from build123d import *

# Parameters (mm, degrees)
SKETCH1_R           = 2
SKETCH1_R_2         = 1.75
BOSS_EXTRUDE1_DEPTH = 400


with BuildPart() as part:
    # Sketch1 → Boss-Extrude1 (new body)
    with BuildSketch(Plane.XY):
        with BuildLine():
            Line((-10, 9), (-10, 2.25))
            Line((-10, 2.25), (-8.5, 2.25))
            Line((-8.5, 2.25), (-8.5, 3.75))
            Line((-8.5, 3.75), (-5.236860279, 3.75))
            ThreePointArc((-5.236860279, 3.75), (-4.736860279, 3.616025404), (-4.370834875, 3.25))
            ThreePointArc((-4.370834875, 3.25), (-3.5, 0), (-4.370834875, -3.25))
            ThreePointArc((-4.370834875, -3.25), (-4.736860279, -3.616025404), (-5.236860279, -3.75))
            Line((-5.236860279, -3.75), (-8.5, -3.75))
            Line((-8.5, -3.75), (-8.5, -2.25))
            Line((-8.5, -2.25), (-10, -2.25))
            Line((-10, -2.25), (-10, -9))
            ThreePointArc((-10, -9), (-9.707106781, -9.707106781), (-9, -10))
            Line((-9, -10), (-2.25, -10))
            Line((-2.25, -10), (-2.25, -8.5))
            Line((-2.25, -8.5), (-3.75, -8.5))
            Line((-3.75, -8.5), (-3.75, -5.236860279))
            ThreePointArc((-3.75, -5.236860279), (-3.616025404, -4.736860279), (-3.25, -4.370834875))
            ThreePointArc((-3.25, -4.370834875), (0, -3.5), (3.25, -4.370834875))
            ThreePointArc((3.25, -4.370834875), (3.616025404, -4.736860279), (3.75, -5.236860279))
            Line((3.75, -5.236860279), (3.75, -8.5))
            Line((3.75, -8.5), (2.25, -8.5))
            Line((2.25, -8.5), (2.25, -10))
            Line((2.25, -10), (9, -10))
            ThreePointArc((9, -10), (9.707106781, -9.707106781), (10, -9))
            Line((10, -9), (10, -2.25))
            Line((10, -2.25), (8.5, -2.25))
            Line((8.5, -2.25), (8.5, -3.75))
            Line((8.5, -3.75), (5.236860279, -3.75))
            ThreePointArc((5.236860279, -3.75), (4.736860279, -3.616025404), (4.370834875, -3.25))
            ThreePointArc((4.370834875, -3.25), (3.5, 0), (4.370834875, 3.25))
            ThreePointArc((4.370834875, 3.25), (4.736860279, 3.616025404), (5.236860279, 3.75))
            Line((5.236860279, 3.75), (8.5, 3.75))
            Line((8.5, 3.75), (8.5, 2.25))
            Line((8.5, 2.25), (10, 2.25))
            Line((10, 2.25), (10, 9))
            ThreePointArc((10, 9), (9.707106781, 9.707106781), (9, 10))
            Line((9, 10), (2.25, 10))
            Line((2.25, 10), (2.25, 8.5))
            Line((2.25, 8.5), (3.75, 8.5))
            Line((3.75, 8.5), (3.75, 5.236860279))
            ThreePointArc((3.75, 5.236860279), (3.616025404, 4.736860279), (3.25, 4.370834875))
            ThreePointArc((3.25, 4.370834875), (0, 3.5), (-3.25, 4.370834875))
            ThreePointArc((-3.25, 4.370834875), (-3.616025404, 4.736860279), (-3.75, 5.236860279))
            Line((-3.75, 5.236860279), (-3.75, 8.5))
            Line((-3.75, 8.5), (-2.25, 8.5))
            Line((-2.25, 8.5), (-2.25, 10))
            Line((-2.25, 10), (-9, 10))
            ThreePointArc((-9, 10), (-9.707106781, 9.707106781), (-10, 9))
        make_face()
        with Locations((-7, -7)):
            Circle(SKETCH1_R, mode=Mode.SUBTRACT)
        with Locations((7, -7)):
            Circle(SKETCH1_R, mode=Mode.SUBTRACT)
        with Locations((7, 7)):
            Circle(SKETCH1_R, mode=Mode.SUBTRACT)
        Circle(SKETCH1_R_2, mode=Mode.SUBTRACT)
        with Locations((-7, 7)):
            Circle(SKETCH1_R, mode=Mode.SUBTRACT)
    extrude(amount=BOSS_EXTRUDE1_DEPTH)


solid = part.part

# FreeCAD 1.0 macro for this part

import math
import FreeCAD as App
import Part
import Sketcher

V = App.Vector

doc = App.newDocument("Part")
body = doc.addObject("PartDesign::Body", "Body")

sketch1 = body.newObject("Sketcher::SketchObject", "Sketch")
sketch1.AttachmentSupport = (doc.getObject("XY_Plane"), [""])
sketch1.MapMode = "FlatFace"
sketch1.addGeometry([
    Part.LineSegment(V(-10, 9, 0), V(-10, 2.25, 0)),
    Part.LineSegment(V(-10, 2.25, 0), V(-8.5, 2.25, 0)),
    Part.LineSegment(V(-8.5, 2.25, 0), V(-8.5, 3.75, 0)),
    Part.LineSegment(V(-8.5, 3.75, 0), V(-5.23686, 3.75, 0)),
    Part.ArcOfCircle(Part.Circle(V(-5.23686, 2.75, 0), V(0, 0, 1), 1), math.radians(30), math.radians(90)),
    Part.ArcOfCircle(Part.Circle(V(-10, 0, 0), V(0, 0, 1), 6.5), math.radians(-30), math.radians(30)),
    Part.ArcOfCircle(Part.Circle(V(-5.23686, -2.75, 0), V(0, 0, 1), 1), math.radians(-90), math.radians(-30)),
    Part.LineSegment(V(-5.23686, -3.75, 0), V(-8.5, -3.75, 0)),
    Part.LineSegment(V(-8.5, -3.75, 0), V(-8.5, -2.25, 0)),
    Part.LineSegment(V(-8.5, -2.25, 0), V(-10, -2.25, 0)),
    Part.LineSegment(V(-10, -2.25, 0), V(-10, -9, 0)),
    Part.ArcOfCircle(Part.Circle(V(-9, -9, 0), V(0, 0, 1), 1), math.radians(-180), math.radians(-90)),
    Part.LineSegment(V(-9, -10, 0), V(-2.25, -10, 0)),
    Part.LineSegment(V(-2.25, -10, 0), V(-2.25, -8.5, 0)),
    Part.LineSegment(V(-2.25, -8.5, 0), V(-3.75, -8.5, 0)),
    Part.LineSegment(V(-3.75, -8.5, 0), V(-3.75, -5.23686, 0)),
    Part.ArcOfCircle(Part.Circle(V(-2.75, -5.23686, 0), V(0, 0, 1), 1), math.radians(120), math.radians(180)),
    Part.ArcOfCircle(Part.Circle(V(0, -10, 0), V(0, 0, 1), 6.5), math.radians(60), math.radians(120)),
    Part.ArcOfCircle(Part.Circle(V(2.75, -5.23686, 0), V(0, 0, 1), 1), math.radians(0), math.radians(60)),
    Part.LineSegment(V(3.75, -5.23686, 0), V(3.75, -8.5, 0)),
    Part.LineSegment(V(3.75, -8.5, 0), V(2.25, -8.5, 0)),
    Part.LineSegment(V(2.25, -8.5, 0), V(2.25, -10, 0)),
    Part.LineSegment(V(2.25, -10, 0), V(9, -10, 0)),
    Part.ArcOfCircle(Part.Circle(V(9, -9, 0), V(0, 0, 1), 1), math.radians(-90), math.radians(0)),
    Part.LineSegment(V(10, -9, 0), V(10, -2.25, 0)),
    Part.LineSegment(V(10, -2.25, 0), V(8.5, -2.25, 0)),
    Part.LineSegment(V(8.5, -2.25, 0), V(8.5, -3.75, 0)),
    Part.LineSegment(V(8.5, -3.75, 0), V(5.23686, -3.75, 0)),
    Part.ArcOfCircle(Part.Circle(V(5.23686, -2.75, 0), V(0, 0, 1), 1), math.radians(-150), math.radians(-90)),
    Part.ArcOfCircle(Part.Circle(V(10, 0, 0), V(0, 0, 1), 6.5), math.radians(150), math.radians(210)),
    Part.ArcOfCircle(Part.Circle(V(5.23686, 2.75, 0), V(0, 0, 1), 1), math.radians(90), math.radians(150)),
    Part.LineSegment(V(5.23686, 3.75, 0), V(8.5, 3.75, 0)),
    Part.LineSegment(V(8.5, 3.75, 0), V(8.5, 2.25, 0)),
    Part.LineSegment(V(8.5, 2.25, 0), V(10, 2.25, 0)),
    Part.LineSegment(V(10, 2.25, 0), V(10, 9, 0)),
    Part.ArcOfCircle(Part.Circle(V(9, 9, 0), V(0, 0, 1), 1), math.radians(0), math.radians(90)),
    Part.LineSegment(V(9, 10, 0), V(2.25, 10, 0)),
    Part.LineSegment(V(2.25, 10, 0), V(2.25, 8.5, 0)),
    Part.LineSegment(V(2.25, 8.5, 0), V(3.75, 8.5, 0)),
    Part.LineSegment(V(3.75, 8.5, 0), V(3.75, 5.23686, 0)),
    Part.ArcOfCircle(Part.Circle(V(2.75, 5.23686, 0), V(0, 0, 1), 1), math.radians(-60), math.radians(0)),
    Part.ArcOfCircle(Part.Circle(V(0, 10, 0), V(0, 0, 1), 6.5), math.radians(-120), math.radians(-60)),
    Part.ArcOfCircle(Part.Circle(V(-2.75, 5.23686, 0), V(0, 0, 1), 1), math.radians(180), math.radians(240)),
    Part.LineSegment(V(-3.75, 5.23686, 0), V(-3.75, 8.5, 0)),
    Part.LineSegment(V(-3.75, 8.5, 0), V(-2.25, 8.5, 0)),
    Part.LineSegment(V(-2.25, 8.5, 0), V(-2.25, 10, 0)),
    Part.LineSegment(V(-2.25, 10, 0), V(-9, 10, 0)),
    Part.ArcOfCircle(Part.Circle(V(-9, 9, 0), V(0, 0, 1), 1), math.radians(90), math.radians(180)),
    Part.Circle(V(-7, -7, 0), V(0, 0, 1), 2),
    Part.Circle(V(7, -7, 0), V(0, 0, 1), 2),
    Part.Circle(V(-7, 7, 0), V(0, 0, 1), 2),
    Part.Circle(V(0, 0, 0), V(0, 0, 1), 1.75),
    Part.Circle(V(7, 7, 0), V(0, 0, 1), 2),
], False)
sketch1.addConstraint([
    Sketcher.Constraint("Coincident", 0, 2, 1, 1),
    Sketcher.Constraint("Coincident", 1, 2, 2, 1),
    Sketcher.Constraint("Coincident", 2, 2, 3, 1),
    Sketcher.Constraint("Tangent", 3, 2, 4, 2),
    Sketcher.Constraint("Tangent", 4, 1, 5, 2),
    Sketcher.Constraint("Tangent", 5, 1, 6, 2),
    Sketcher.Constraint("Tangent", 6, 1, 7, 1),
    Sketcher.Constraint("Coincident", 7, 2, 8, 1),
    Sketcher.Constraint("Coincident", 8, 2, 9, 1),
    Sketcher.Constraint("Coincident", 9, 2, 10, 1),
    Sketcher.Constraint("Tangent", 10, 2, 11, 1),
    Sketcher.Constraint("Tangent", 11, 2, 12, 1),
    Sketcher.Constraint("Coincident", 12, 2, 13, 1),
    Sketcher.Constraint("Coincident", 13, 2, 14, 1),
    Sketcher.Constraint("Coincident", 14, 2, 15, 1),
    Sketcher.Constraint("Tangent", 15, 2, 16, 2),
    Sketcher.Constraint("Tangent", 16, 1, 17, 2),
    Sketcher.Constraint("Tangent", 17, 1, 18, 2),
    Sketcher.Constraint("Tangent", 18, 1, 19, 1),
    Sketcher.Constraint("Coincident", 19, 2, 20, 1),
    Sketcher.Constraint("Coincident", 20, 2, 21, 1),
    Sketcher.Constraint("Coincident", 21, 2, 22, 1),
    Sketcher.Constraint("Tangent", 22, 2, 23, 1),
    Sketcher.Constraint("Tangent", 23, 2, 24, 1),
    Sketcher.Constraint("Coincident", 24, 2, 25, 1),
    Sketcher.Constraint("Coincident", 25, 2, 26, 1),
    Sketcher.Constraint("Coincident", 26, 2, 27, 1),
    Sketcher.Constraint("Tangent", 27, 2, 28, 2),
    Sketcher.Constraint("Tangent", 28, 1, 29, 2),
    Sketcher.Constraint("Tangent", 29, 1, 30, 2),
    Sketcher.Constraint("Tangent", 30, 1, 31, 1),
    Sketcher.Constraint("Coincident", 31, 2, 32, 1),
    Sketcher.Constraint("Coincident", 32, 2, 33, 1),
    Sketcher.Constraint("Coincident", 33, 2, 34, 1),
    Sketcher.Constraint("Tangent", 34, 2, 35, 1),
    Sketcher.Constraint("Tangent", 35, 2, 36, 1),
    Sketcher.Constraint("Coincident", 36, 2, 37, 1),
    Sketcher.Constraint("Coincident", 37, 2, 38, 1),
    Sketcher.Constraint("Coincident", 38, 2, 39, 1),
    Sketcher.Constraint("Tangent", 39, 2, 40, 2),
    Sketcher.Constraint("Tangent", 40, 1, 41, 2),
    Sketcher.Constraint("Tangent", 41, 1, 42, 2),
    Sketcher.Constraint("Tangent", 42, 1, 43, 1),
    Sketcher.Constraint("Coincident", 43, 2, 44, 1),
    Sketcher.Constraint("Coincident", 44, 2, 45, 1),
    Sketcher.Constraint("Coincident", 45, 2, 46, 1),
    Sketcher.Constraint("Tangent", 46, 2, 47, 1),
    Sketcher.Constraint("Tangent", 47, 2, 0, 1),
    Sketcher.Constraint("Vertical", 0),
    Sketcher.Constraint("Horizontal", 1),
    Sketcher.Constraint("Vertical", 2),
    Sketcher.Constraint("Horizontal", 3),
    Sketcher.Constraint("Horizontal", 7),
    Sketcher.Constraint("Vertical", 8),
    Sketcher.Constraint("Horizontal", 9),
    Sketcher.Constraint("Vertical", 10),
    Sketcher.Constraint("Horizontal", 12),
    Sketcher.Constraint("Vertical", 13),
    Sketcher.Constraint("Horizontal", 14),
    Sketcher.Constraint("Vertical", 15),
    Sketcher.Constraint("Vertical", 19),
    Sketcher.Constraint("Horizontal", 20),
    Sketcher.Constraint("Vertical", 21),
    Sketcher.Constraint("Horizontal", 22),
    Sketcher.Constraint("Vertical", 24),
    Sketcher.Constraint("Horizontal", 25),
    Sketcher.Constraint("Vertical", 26),
    Sketcher.Constraint("Horizontal", 27),
    Sketcher.Constraint("Horizontal", 31),
    Sketcher.Constraint("Vertical", 32),
    Sketcher.Constraint("Horizontal", 33),
    Sketcher.Constraint("Vertical", 34),
    Sketcher.Constraint("Horizontal", 36),
    Sketcher.Constraint("Vertical", 37),
    Sketcher.Constraint("Horizontal", 38),
    Sketcher.Constraint("Vertical", 39),
    Sketcher.Constraint("Vertical", 43),
    Sketcher.Constraint("Horizontal", 44),
    Sketcher.Constraint("Vertical", 45),
    Sketcher.Constraint("Horizontal", 46),
    Sketcher.Constraint("Coincident", 51, 3, -1, 1),
    Sketcher.Constraint("Equal", 4, 6),
    Sketcher.Constraint("Equal", 6, 11),
    Sketcher.Constraint("Equal", 11, 16),
    Sketcher.Constraint("Equal", 5, 17),
    Sketcher.Constraint("Equal", 16, 18),
    Sketcher.Constraint("Equal", 18, 23),
    Sketcher.Constraint("Equal", 23, 28),
    Sketcher.Constraint("Equal", 17, 29),
    Sketcher.Constraint("Equal", 28, 30),
    Sketcher.Constraint("Equal", 30, 35),
    Sketcher.Constraint("Equal", 35, 40),
    Sketcher.Constraint("Equal", 29, 41),
    Sketcher.Constraint("Equal", 40, 42),
    Sketcher.Constraint("Equal", 42, 47),
    Sketcher.Constraint("Equal", 48, 49),
    Sketcher.Constraint("Equal", 49, 50),
    Sketcher.Constraint("Equal", 50, 52),
    Sketcher.Constraint("Symmetric", 4, 3, 28, 3, -1, 1),
    Sketcher.Constraint("Symmetric", 6, 3, 30, 3, -1, 1),
    Sketcher.Constraint("Symmetric", 11, 3, 35, 3, -1, 1),
    Sketcher.Constraint("Symmetric", 16, 3, 40, 3, -1, 1),
    Sketcher.Constraint("Symmetric", 18, 3, 42, 3, -1, 1),
    Sketcher.Constraint("Symmetric", 23, 3, 47, 3, -1, 1),
    Sketcher.Constraint("Symmetric", 49, 3, 50, 3, -1, 1),
    Sketcher.Constraint("Symmetric", 48, 3, 52, 3, -1, 1),
    Sketcher.Constraint("Symmetric", 1, 2, 25, 2, -1, 1),
    Sketcher.Constraint("Symmetric", 8, 2, 32, 2, -1, 1),
    Sketcher.Constraint("Symmetric", 13, 2, 37, 2, -1, 1),
    Sketcher.Constraint("Symmetric", 20, 2, 44, 2, -1, 1),
    Sketcher.Constraint("Symmetric", 16, 3, 18, 3, -2),
    Sketcher.Constraint("Symmetric", 11, 3, 23, 3, -2),
    Sketcher.Constraint("Symmetric", 6, 3, 28, 3, -2),
    Sketcher.Constraint("Symmetric", 48, 3, 49, 3, -2),
    Sketcher.Constraint("Symmetric", 13, 2, 20, 2, -2),
    Sketcher.Constraint("Symmetric", 8, 2, 25, 2, -2),
    Sketcher.Constraint("Horizontal", 17, 3, 11, 2),
    Sketcher.Constraint("Vertical", 5, 3, 0, 2),
    Sketcher.Constraint("Equal", 9, 14),
    Sketcher.Constraint("Equal", 46, 0),
    Sketcher.Constraint("Equal", 44, 2),
    Sketcher.Constraint("Equal", 8, 13),
    Sketcher.Constraint("Equal", 31, 15),
    Sketcher.Constraint("Diameter", 48, 4.0),
    Sketcher.Constraint("Radius", 4, 1.0),
    Sketcher.Constraint("Diameter", 51, 3.5),
    Sketcher.Constraint("Radius", 5, 6.5),
    Sketcher.Constraint("DistanceX", 1, 1, 1, 2, 1.5),
    Sketcher.Constraint("DistanceX", 5, 3, -1, 1, 10.0),
    Sketcher.Constraint("DistanceX", 48, 3, -1, 1, 7.0),
    Sketcher.Constraint("DistanceY", 48, 3, -1, 1, 7.0),
    Sketcher.Constraint("DistanceX", 12, 1, 12, 2, 6.75),
])
pad1 = body.newObject("PartDesign::Pad", "Pad")
pad1.Profile = sketch1
pad1.Length = 400

doc.recompute()
